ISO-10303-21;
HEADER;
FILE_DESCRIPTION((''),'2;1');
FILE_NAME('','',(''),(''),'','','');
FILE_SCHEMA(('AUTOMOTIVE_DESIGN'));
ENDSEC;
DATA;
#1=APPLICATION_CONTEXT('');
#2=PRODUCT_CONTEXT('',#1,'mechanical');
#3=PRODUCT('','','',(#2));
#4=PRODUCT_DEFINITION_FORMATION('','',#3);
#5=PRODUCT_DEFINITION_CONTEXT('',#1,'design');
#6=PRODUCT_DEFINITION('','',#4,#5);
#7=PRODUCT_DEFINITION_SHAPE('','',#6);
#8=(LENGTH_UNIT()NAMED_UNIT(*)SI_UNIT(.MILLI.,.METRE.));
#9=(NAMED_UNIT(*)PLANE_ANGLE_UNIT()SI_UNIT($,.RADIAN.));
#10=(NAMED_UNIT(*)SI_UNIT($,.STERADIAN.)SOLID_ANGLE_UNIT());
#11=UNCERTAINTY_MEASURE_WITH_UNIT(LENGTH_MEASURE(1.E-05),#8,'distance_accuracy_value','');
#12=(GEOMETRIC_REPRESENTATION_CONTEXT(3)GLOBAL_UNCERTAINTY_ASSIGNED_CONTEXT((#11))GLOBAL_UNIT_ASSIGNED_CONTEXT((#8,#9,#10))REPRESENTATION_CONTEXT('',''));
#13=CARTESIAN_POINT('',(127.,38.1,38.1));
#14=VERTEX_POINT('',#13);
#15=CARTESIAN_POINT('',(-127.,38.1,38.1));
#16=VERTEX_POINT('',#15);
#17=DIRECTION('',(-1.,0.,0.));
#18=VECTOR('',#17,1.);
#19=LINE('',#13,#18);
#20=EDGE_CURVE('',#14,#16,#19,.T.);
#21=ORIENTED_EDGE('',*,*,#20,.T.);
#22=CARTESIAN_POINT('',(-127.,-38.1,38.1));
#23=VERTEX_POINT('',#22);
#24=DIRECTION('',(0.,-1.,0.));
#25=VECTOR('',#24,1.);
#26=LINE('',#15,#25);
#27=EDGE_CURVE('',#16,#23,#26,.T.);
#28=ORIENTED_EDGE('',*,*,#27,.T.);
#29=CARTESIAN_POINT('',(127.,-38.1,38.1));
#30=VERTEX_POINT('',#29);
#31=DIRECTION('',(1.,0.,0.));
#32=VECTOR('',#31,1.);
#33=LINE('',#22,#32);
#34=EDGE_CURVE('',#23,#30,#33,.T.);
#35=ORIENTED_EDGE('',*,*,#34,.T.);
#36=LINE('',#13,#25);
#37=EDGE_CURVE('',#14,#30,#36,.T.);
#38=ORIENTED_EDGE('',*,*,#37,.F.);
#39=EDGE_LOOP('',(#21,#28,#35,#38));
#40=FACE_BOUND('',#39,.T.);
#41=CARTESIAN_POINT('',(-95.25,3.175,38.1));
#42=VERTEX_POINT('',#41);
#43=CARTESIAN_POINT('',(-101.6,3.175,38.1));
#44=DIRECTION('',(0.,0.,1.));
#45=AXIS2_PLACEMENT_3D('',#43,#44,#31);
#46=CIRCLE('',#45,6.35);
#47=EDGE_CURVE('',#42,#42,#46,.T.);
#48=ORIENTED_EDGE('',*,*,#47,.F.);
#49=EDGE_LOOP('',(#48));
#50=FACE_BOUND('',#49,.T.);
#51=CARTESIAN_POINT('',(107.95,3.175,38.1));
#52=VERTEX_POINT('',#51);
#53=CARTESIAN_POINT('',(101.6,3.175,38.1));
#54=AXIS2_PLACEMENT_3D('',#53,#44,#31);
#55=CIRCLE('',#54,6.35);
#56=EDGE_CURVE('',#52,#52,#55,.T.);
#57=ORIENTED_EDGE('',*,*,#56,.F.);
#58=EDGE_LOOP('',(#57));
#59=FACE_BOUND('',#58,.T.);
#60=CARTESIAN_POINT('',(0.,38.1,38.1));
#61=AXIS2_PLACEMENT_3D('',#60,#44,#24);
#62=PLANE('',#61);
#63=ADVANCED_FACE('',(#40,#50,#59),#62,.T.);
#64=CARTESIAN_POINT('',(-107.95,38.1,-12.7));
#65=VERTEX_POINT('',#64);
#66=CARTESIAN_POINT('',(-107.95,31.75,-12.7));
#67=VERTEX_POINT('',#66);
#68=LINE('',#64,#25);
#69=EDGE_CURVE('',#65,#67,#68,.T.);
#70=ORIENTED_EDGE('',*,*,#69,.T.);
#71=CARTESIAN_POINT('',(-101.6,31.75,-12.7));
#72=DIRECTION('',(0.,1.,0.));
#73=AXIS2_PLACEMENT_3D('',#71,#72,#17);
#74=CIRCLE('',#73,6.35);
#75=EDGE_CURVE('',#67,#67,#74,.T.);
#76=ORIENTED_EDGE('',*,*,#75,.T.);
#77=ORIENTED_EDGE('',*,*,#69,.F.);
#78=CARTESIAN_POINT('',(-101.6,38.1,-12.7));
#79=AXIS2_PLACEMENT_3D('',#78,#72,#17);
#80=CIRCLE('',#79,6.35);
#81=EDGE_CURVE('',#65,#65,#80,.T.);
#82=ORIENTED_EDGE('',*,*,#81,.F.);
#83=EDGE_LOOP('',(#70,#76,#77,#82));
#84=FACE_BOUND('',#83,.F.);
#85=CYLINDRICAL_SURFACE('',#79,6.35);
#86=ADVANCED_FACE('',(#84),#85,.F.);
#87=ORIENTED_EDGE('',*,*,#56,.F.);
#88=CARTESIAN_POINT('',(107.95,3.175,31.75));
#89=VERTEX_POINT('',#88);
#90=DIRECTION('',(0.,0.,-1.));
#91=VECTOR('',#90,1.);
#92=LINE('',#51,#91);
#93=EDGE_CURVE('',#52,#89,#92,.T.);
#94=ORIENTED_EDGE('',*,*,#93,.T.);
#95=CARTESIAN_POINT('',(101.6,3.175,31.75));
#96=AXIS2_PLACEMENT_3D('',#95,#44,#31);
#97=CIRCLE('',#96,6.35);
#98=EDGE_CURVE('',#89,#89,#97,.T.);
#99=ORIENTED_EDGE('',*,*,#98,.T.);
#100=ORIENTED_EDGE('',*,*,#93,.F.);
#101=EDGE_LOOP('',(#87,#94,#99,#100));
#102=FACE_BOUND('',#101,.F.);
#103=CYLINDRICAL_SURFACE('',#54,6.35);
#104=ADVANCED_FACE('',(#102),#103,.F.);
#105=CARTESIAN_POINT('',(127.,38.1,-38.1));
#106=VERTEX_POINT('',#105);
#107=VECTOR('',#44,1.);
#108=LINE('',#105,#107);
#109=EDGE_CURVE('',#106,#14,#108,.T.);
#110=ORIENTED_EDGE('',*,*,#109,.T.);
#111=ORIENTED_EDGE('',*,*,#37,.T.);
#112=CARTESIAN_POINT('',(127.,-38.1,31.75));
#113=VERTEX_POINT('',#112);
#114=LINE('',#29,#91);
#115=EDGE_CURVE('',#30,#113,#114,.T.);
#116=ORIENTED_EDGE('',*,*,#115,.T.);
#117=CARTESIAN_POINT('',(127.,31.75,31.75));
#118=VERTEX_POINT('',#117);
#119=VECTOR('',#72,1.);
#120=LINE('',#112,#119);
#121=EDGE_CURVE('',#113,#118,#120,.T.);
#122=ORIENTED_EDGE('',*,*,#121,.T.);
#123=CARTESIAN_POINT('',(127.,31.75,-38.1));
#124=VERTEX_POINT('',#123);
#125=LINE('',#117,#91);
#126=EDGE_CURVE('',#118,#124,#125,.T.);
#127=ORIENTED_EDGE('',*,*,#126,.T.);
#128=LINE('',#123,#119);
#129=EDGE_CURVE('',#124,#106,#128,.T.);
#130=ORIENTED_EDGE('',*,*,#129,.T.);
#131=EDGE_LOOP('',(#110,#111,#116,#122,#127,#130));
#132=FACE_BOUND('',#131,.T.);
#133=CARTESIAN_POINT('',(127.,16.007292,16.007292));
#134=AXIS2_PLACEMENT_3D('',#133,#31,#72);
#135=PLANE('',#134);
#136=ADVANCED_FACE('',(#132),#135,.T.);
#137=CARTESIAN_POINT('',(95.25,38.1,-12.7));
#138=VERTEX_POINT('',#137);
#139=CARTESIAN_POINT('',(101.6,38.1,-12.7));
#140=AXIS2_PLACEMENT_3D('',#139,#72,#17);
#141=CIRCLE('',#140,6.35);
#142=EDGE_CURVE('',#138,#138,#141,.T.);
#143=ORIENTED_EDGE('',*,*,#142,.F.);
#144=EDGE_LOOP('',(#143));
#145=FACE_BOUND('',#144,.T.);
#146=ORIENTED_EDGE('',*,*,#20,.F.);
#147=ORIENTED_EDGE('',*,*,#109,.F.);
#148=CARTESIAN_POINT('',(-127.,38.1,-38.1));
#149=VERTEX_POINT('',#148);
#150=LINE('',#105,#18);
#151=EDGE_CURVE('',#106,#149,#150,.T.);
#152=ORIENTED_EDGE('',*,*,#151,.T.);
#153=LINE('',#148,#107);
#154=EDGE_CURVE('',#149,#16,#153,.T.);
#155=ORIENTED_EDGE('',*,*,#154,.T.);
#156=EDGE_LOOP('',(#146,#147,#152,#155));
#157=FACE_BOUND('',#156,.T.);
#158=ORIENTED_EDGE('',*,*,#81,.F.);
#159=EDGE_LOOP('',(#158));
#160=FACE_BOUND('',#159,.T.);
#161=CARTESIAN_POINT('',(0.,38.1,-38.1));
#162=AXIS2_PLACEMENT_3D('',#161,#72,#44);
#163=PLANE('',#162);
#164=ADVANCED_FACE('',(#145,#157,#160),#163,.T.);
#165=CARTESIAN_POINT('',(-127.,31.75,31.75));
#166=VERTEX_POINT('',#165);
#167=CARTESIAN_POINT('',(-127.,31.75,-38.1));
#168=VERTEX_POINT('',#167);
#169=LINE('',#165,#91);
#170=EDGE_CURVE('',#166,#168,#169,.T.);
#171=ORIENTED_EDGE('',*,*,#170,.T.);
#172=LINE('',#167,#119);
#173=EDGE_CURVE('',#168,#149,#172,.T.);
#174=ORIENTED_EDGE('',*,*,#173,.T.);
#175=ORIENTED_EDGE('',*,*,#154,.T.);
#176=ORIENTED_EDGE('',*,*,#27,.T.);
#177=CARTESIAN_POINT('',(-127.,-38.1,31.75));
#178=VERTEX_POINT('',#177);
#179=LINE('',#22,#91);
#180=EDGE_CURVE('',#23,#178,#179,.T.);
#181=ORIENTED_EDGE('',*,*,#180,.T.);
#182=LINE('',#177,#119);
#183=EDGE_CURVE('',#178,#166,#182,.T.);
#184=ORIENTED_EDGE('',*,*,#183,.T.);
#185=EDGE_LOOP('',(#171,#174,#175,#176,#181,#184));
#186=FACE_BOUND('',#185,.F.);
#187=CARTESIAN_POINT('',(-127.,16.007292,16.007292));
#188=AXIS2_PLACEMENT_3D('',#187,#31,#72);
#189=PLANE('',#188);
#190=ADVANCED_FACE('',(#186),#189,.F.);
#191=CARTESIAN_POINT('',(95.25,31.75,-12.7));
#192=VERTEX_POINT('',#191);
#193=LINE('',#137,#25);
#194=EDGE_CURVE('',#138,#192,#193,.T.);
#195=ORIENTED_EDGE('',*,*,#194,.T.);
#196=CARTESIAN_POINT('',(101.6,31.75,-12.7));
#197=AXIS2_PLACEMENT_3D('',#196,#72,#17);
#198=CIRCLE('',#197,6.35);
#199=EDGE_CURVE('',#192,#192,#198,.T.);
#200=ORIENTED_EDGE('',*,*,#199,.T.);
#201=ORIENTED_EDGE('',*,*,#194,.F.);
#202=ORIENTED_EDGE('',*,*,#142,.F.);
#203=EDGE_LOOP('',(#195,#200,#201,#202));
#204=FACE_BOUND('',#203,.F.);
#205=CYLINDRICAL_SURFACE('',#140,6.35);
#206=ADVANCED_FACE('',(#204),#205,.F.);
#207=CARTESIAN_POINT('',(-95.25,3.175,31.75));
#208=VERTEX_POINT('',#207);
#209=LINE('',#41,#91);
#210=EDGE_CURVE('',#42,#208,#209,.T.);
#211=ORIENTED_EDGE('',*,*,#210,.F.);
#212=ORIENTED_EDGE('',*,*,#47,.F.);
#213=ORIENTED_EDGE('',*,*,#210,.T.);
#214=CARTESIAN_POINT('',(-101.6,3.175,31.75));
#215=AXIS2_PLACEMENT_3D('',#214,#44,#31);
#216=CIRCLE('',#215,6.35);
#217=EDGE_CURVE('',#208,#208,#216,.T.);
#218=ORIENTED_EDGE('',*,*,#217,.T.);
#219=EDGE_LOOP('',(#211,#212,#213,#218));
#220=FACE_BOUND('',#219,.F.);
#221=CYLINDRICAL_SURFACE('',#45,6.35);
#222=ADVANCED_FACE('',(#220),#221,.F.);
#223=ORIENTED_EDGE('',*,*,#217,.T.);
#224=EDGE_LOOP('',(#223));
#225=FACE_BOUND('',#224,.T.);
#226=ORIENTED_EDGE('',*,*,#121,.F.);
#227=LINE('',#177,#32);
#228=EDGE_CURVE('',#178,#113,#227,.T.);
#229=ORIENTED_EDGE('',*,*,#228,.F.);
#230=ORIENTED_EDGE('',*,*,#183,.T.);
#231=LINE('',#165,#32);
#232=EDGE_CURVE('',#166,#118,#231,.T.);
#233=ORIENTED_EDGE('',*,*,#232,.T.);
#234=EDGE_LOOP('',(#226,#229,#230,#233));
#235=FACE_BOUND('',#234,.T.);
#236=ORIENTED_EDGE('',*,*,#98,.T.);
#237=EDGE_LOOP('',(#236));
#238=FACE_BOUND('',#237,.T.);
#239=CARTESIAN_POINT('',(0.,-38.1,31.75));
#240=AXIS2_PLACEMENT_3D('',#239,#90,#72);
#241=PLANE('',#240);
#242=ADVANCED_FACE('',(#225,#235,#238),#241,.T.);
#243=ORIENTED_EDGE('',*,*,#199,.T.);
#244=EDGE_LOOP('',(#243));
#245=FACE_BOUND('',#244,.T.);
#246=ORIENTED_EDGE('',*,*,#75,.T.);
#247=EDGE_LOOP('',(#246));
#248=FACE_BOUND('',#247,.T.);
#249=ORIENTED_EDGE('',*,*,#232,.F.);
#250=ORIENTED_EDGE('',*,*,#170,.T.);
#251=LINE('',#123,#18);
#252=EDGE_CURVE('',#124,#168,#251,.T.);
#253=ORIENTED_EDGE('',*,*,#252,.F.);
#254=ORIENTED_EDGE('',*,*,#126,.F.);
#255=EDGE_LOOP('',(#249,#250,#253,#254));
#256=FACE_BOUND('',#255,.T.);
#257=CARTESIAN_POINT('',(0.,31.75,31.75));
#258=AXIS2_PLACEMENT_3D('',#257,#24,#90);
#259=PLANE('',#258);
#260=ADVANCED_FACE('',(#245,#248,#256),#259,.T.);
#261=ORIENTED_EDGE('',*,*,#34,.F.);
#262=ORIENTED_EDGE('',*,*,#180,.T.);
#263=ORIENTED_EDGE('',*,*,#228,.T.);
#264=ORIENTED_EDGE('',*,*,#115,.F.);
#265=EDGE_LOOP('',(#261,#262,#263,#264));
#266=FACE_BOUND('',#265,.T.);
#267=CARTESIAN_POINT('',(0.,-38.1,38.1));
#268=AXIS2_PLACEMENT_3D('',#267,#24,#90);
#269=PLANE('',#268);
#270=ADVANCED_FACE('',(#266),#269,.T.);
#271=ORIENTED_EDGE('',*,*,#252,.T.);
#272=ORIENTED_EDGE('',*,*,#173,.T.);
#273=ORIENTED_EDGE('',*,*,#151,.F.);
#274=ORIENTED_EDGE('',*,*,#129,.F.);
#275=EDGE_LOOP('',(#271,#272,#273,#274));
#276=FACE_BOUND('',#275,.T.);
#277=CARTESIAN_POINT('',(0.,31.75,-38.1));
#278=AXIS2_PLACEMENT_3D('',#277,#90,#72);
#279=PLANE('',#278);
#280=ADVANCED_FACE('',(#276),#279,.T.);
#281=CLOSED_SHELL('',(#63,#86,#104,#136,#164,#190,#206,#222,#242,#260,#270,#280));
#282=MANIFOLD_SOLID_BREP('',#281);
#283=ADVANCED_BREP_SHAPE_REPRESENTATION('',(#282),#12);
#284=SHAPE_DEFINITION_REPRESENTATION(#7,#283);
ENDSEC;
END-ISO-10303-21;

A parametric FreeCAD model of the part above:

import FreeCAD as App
import Part
import Sketcher
from FreeCAD import Vector
Q = App.Units.Quantity

doc = App.newDocument("Part")
body = doc.addObject("PartDesign::Body", "Body")

# Sketch on YZ plane
sketch1 = body.newObject("Sketcher::SketchObject", "Sketch")
sketch1.AttachmentSupport = (doc.getObject("YZ_Plane"), [""])
sketch1.MapMode = "FlatFace"
sketch1.addGeometry(Part.LineSegment(Vector(38, 38, 0), Vector(-38, 38, 0)), False)
sketch1.addGeometry(Part.LineSegment(Vector(-38, 38, 0), Vector(-38, 32, 0)), False)
sketch1.addGeometry(Part.LineSegment(Vector(-38, 32, 0), Vector(32, 32, 0)), False)
sketch1.addGeometry(Part.LineSegment(Vector(32, 32, 0), Vector(32, -38, 0)), False)
sketch1.addGeometry(Part.LineSegment(Vector(32, -38, 0), Vector(38, -38, 0)), False)
sketch1.addGeometry(Part.LineSegment(Vector(38, -38, 0), Vector(38, 38, 0)), False)
sketch1.addConstraint(Sketcher.Constraint("Coincident", 0, 2, 1, 1))
sketch1.addConstraint(Sketcher.Constraint("Coincident", 1, 2, 2, 1))
sketch1.addConstraint(Sketcher.Constraint("Coincident", 2, 2, 3, 1))
sketch1.addConstraint(Sketcher.Constraint("Coincident", 3, 2, 4, 1))
sketch1.addConstraint(Sketcher.Constraint("Coincident", 4, 2, 5, 1))
sketch1.addConstraint(Sketcher.Constraint("Coincident", 5, 2, 0, 1))
sketch1.addConstraint(Sketcher.Constraint("Horizontal", 0))
sketch1.addConstraint(Sketcher.Constraint("Vertical", 1))
sketch1.addConstraint(Sketcher.Constraint("Horizontal", 2))
sketch1.addConstraint(Sketcher.Constraint("Vertical", 3))
sketch1.addConstraint(Sketcher.Constraint("Horizontal", 4))
sketch1.addConstraint(Sketcher.Constraint("Vertical", 5))
sketch1.addConstraint(Sketcher.Constraint("Symmetric", 0, 2, 4, 2, -1, 1))
sketch1.addConstraint(Sketcher.Constraint("Equal", 4, 1))
sketch1.addConstraint(Sketcher.Constraint("Equal", 2, 3))
sketch1.addConstraint(Sketcher.Constraint("DistanceX", 0, 2, 0, 1, Q("3 in")))
sketch1.addConstraint(Sketcher.Constraint("DistanceX", 2, 1, 2, 2, Q("2.75 in")))
pad1 = body.newObject("PartDesign::Pad", "Pad")
pad1.Profile = sketch1
pad1.Length = Q("10 in")
pad1.Midplane = True

# Sketch on XZ plane
sketch2 = body.newObject("Sketcher::SketchObject", "Sketch001")
sketch2.AttachmentSupport = (doc.getObject("XZ_Plane"), [""])
sketch2.MapMode = "FlatFace"
sketch2.AttachmentOffset = App.Placement(Vector(0, 0, -1.5 * 25.4), App.Rotation())
sketch2.addGeometry(Part.Circle(Vector(102, -13, 0), Vector(0, 0, 1), 6), False)
sketch2.addGeometry(Part.Circle(Vector(-102, -13, 0), Vector(0, 0, 1), 6), False)
sketch2.addConstraint(Sketcher.Constraint("Equal", 0, 1))
sketch2.addConstraint(Sketcher.Constraint("Symmetric", 0, 3, 1, 3, -2))
sketch2.addConstraint(Sketcher.Constraint("Diameter", 0, Q("0.5 in")))
sketch2.addConstraint(Sketcher.Constraint("DistanceX", -1, 1, 0, 3, Q("4 in")))
sketch2.addConstraint(Sketcher.Constraint("DistanceY", 0, 3, -1, 1, Q("0.5 in")))
pocket1 = body.newObject("PartDesign::Pocket", "Pocket")
pocket1.Profile = sketch2
pocket1.Type = "ThroughAll"
pocket1.Reversed = True

# Sketch on XY plane
sketch3 = body.newObject("Sketcher::SketchObject", "Sketch002")
sketch3.AttachmentSupport = (doc.getObject("XY_Plane"), [""])
sketch3.MapMode = "FlatFace"
sketch3.AttachmentOffset = App.Placement(Vector(0, 0, 1.5 * 25.4), App.Rotation())
sketch3.addGeometry(Part.Circle(Vector(-102, 3, 0), Vector(0, 0, 1), 6), False)
sketch3.addGeometry(Part.Circle(Vector(102, 3, 0), Vector(0, 0, 1), 6), False)
sketch3.addConstraint(Sketcher.Constraint("Equal", 0, 1))
sketch3.addConstraint(Sketcher.Constraint("Symmetric", 0, 3, 1, 3, -2))
sketch3.addConstraint(Sketcher.Constraint("Diameter", 0, Q("0.5 in")))
sketch3.addConstraint(Sketcher.Constraint("DistanceX", 0, 3, -1, 1, Q("4 in")))
sketch3.addConstraint(Sketcher.Constraint("DistanceY", -1, 1, 0, 3, Q("0.125 in")))
pocket2 = body.newObject("PartDesign::Pocket", "Pocket001")
pocket2.Profile = sketch3
pocket2.Type = "ThroughAll"

doc.recompute()
